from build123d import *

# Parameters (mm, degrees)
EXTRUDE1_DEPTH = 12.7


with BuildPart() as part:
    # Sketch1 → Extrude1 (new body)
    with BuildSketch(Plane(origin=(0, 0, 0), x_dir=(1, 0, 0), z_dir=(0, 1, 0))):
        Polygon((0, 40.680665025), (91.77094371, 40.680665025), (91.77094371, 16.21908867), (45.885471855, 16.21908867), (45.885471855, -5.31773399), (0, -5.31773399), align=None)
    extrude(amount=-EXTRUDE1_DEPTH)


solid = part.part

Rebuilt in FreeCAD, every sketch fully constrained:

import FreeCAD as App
import Part
import Sketcher
from FreeCAD import Vector
Q = App.Units.Quantity


def add_polygon(sketch, points):
    """Adds a closed chain of lines whose ends are joined by coincident constraints."""
    first, n = sketch.GeometryCount, len(points)
    for a, b in zip(points, points[1:] + points[:1]):
        sketch.addGeometry(Part.LineSegment(App.Vector(*a, 0), App.Vector(*b, 0)), False)
    for i in range(n):
        sketch.addConstraint(Sketcher.Constraint("Coincident", first + i, 2, first + (i + 1) % n, 1))

doc = App.newDocument("Part")
body = doc.addObject("PartDesign::Body", "Body")

sketch1 = doc.addObject("Sketcher::SketchObject", "Sketch")
body.addObject(sketch1)
sketch1.AttachmentSupport = (doc.XZ_Plane, [""])
sketch1.MapMode = "FlatFace"
add_polygon(sketch1, [(92, -41), (0, -41), (0, 5), (46, 5), (46, -16), (92, -16)])
sketch1.addConstraint(Sketcher.Constraint("Horizontal", 0))
sketch1.addConstraint(Sketcher.Constraint("Vertical", 1))
sketch1.addConstraint(Sketcher.Constraint("Horizontal", 2))
sketch1.addConstraint(Sketcher.Constraint("Vertical", 3))
sketch1.addConstraint(Sketcher.Constraint("Horizontal", 4))
sketch1.addConstraint(Sketcher.Constraint("Vertical", 5))
sketch1.addConstraint(Sketcher.Constraint("PointOnObject", 0, 2, -2))
sketch1.addConstraint(Sketcher.Constraint("Equal", 2, 4))
sketch1.addConstraint(Sketcher.Constraint("DistanceY", 1, 1, 1, 2, 45.998399))
sketch1.addConstraint(Sketcher.Constraint("DistanceX", 2, 1, 2, 2, 45.885472))
sketch1.addConstraint(Sketcher.Constraint("DistanceY", 3, 2, 3, 1, 21.536823))
sketch1.addConstraint(Sketcher.Constraint("DistanceY", 3, 2, -1, 1, 16.219089))
pad1 = doc.addObject("PartDesign::Pad", "Pad")
body.addObject(pad1)
pad1.Profile = sketch1
pad1.Length = Q("0.5 in")

doc.recompute()
